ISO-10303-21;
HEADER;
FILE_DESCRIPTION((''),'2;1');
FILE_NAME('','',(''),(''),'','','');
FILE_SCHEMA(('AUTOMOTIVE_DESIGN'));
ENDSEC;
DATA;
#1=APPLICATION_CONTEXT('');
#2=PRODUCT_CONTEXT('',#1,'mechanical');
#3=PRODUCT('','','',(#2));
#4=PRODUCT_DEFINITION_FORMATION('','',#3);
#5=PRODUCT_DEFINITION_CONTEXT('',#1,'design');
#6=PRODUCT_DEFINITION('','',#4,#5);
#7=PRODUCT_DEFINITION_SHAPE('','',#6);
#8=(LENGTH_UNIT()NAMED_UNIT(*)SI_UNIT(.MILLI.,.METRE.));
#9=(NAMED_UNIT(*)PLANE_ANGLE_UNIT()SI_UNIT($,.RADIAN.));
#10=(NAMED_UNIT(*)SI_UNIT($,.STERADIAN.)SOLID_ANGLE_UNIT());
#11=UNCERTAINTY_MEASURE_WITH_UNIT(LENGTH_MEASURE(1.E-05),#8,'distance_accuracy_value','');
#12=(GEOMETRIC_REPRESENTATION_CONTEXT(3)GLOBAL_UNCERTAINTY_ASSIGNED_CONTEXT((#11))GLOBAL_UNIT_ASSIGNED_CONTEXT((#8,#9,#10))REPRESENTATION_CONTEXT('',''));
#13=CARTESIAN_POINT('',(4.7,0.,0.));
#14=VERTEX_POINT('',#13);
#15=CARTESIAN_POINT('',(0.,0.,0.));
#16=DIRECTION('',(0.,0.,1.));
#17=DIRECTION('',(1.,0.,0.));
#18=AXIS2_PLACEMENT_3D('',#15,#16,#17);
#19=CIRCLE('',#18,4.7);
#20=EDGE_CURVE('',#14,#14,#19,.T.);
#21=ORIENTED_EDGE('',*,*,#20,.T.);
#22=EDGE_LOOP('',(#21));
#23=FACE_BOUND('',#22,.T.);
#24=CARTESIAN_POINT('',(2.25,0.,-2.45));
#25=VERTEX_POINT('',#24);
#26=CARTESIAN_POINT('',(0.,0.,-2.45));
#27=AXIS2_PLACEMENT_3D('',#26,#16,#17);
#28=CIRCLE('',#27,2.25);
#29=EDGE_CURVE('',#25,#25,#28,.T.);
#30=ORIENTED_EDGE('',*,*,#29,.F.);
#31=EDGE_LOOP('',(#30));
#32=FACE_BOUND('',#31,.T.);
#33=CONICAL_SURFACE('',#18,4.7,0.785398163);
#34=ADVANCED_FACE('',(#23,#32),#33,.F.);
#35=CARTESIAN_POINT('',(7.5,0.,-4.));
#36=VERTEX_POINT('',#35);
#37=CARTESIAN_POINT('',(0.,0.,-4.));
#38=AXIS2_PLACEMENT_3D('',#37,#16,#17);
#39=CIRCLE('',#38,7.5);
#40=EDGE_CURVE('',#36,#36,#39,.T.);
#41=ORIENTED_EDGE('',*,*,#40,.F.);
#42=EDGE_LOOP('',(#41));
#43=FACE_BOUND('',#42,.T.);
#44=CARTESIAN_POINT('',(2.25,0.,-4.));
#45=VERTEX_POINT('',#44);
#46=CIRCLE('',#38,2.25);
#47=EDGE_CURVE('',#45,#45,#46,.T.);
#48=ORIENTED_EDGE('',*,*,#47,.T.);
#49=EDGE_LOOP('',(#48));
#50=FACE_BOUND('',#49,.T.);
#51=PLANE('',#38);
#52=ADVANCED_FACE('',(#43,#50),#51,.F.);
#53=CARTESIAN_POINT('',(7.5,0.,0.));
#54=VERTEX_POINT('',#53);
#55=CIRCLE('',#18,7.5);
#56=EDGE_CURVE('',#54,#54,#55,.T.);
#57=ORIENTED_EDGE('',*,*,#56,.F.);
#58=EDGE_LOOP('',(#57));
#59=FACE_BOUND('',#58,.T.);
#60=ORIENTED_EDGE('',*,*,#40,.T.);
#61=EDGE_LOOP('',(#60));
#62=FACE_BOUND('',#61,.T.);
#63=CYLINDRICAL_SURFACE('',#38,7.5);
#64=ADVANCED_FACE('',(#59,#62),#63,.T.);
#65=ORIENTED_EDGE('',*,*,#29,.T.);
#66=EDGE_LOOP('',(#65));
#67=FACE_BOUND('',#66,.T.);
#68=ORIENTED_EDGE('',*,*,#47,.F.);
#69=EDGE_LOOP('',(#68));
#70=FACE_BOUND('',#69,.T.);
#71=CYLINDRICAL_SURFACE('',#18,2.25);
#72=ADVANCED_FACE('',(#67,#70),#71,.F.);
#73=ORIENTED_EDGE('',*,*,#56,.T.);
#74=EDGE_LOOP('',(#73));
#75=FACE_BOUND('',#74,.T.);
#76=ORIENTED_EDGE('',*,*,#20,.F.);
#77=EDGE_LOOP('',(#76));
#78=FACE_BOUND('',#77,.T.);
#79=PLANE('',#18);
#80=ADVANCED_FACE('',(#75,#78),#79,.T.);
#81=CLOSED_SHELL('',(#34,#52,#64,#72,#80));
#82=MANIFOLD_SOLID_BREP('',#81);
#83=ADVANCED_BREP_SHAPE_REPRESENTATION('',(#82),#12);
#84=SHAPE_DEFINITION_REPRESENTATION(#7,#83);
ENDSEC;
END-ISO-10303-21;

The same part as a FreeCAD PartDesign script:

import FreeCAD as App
import Part
import Sketcher
from FreeCAD import Vector
Q = App.Units.Quantity

doc = App.newDocument("Part")
body = doc.addObject("PartDesign::Body", "Body")

sketch1 = body.newObject("Sketcher::SketchObject", "Sketch")
sketch1.AttachmentSupport = (doc.getObject("XY_Plane"), [""])
sketch1.MapMode = "FlatFace"
sketch1.addGeometry(Part.Circle(Vector(0, 0, 0), Vector(0, 0, 1), 8), False)
sketch1.addConstraint(Sketcher.Constraint("Coincident", 0, 3, -1, 1))
sketch1.addConstraint(Sketcher.Constraint("Diameter", 0, Q("15 mm")))
pad1 = body.newObject("PartDesign::Pad", "Pad")
pad1.Profile = sketch1
pad1.Length = 4
pad1.Reversed = True

sketch2 = body.newObject("Sketcher::SketchObject", "Sketch001")
sketch2.AttachmentSupport = (doc.getObject("YZ_Plane"), [""])
sketch2.MapMode = "FlatFace"
sketch2.addGeometry(Part.LineSegment(Vector(0, -4, 0), Vector(0, 0, 0)), False)
sketch2.addGeometry(Part.LineSegment(Vector(0, 0, 0), Vector(-4.7, 0, 0)), False)
sketch2.addGeometry(Part.LineSegment(Vector(-4.7, 0, 0), Vector(-2.2, -2.5, 0)), False)
sketch2.addGeometry(Part.LineSegment(Vector(-2.2, -2.5, 0), Vector(-2.2, -4, 0)), False)
sketch2.addGeometry(Part.LineSegment(Vector(-2.2, -4, 0), Vector(0, -4, 0)), False)
sketch2.addConstraint(Sketcher.Constraint("Coincident", 0, 2, 1, 1))
sketch2.addConstraint(Sketcher.Constraint("Coincident", 1, 2, 2, 1))
sketch2.addConstraint(Sketcher.Constraint("Coincident", 2, 2, 3, 1))
sketch2.addConstraint(Sketcher.Constraint("Coincident", 3, 2, 4, 1))
sketch2.addConstraint(Sketcher.Constraint("Coincident", 4, 2, 0, 1))
sketch2.addConstraint(Sketcher.Constraint("Vertical", 0))
sketch2.addConstraint(Sketcher.Constraint("Horizontal", 1))
sketch2.addConstraint(Sketcher.Constraint("Vertical", 3))
sketch2.addConstraint(Sketcher.Constraint("Horizontal", 4))
sketch2.addConstraint(Sketcher.Constraint("Coincident", 0, 2, -1, 1))
sketch2.addConstraint(Sketcher.Constraint("DistanceY", 0, 1, 0, 2, Q("4 mm")))
sketch2.addConstraint(Sketcher.Constraint("Angle", 2, Q("-45 deg")))
sketch2.addConstraint(Sketcher.Constraint("DistanceX", 1, 2, 1, 1, Q("4.7 mm")))
sketch2.addConstraint(Sketcher.Constraint("DistanceX", 4, 1, 4, 2, Q("2.25 mm")))
groove = body.newObject("PartDesign::Groove", "Groove")
groove.Profile = sketch2
groove.ReferenceAxis = (sketch2, ["V_Axis"])
groove.Angle = 360

doc.recompute()
